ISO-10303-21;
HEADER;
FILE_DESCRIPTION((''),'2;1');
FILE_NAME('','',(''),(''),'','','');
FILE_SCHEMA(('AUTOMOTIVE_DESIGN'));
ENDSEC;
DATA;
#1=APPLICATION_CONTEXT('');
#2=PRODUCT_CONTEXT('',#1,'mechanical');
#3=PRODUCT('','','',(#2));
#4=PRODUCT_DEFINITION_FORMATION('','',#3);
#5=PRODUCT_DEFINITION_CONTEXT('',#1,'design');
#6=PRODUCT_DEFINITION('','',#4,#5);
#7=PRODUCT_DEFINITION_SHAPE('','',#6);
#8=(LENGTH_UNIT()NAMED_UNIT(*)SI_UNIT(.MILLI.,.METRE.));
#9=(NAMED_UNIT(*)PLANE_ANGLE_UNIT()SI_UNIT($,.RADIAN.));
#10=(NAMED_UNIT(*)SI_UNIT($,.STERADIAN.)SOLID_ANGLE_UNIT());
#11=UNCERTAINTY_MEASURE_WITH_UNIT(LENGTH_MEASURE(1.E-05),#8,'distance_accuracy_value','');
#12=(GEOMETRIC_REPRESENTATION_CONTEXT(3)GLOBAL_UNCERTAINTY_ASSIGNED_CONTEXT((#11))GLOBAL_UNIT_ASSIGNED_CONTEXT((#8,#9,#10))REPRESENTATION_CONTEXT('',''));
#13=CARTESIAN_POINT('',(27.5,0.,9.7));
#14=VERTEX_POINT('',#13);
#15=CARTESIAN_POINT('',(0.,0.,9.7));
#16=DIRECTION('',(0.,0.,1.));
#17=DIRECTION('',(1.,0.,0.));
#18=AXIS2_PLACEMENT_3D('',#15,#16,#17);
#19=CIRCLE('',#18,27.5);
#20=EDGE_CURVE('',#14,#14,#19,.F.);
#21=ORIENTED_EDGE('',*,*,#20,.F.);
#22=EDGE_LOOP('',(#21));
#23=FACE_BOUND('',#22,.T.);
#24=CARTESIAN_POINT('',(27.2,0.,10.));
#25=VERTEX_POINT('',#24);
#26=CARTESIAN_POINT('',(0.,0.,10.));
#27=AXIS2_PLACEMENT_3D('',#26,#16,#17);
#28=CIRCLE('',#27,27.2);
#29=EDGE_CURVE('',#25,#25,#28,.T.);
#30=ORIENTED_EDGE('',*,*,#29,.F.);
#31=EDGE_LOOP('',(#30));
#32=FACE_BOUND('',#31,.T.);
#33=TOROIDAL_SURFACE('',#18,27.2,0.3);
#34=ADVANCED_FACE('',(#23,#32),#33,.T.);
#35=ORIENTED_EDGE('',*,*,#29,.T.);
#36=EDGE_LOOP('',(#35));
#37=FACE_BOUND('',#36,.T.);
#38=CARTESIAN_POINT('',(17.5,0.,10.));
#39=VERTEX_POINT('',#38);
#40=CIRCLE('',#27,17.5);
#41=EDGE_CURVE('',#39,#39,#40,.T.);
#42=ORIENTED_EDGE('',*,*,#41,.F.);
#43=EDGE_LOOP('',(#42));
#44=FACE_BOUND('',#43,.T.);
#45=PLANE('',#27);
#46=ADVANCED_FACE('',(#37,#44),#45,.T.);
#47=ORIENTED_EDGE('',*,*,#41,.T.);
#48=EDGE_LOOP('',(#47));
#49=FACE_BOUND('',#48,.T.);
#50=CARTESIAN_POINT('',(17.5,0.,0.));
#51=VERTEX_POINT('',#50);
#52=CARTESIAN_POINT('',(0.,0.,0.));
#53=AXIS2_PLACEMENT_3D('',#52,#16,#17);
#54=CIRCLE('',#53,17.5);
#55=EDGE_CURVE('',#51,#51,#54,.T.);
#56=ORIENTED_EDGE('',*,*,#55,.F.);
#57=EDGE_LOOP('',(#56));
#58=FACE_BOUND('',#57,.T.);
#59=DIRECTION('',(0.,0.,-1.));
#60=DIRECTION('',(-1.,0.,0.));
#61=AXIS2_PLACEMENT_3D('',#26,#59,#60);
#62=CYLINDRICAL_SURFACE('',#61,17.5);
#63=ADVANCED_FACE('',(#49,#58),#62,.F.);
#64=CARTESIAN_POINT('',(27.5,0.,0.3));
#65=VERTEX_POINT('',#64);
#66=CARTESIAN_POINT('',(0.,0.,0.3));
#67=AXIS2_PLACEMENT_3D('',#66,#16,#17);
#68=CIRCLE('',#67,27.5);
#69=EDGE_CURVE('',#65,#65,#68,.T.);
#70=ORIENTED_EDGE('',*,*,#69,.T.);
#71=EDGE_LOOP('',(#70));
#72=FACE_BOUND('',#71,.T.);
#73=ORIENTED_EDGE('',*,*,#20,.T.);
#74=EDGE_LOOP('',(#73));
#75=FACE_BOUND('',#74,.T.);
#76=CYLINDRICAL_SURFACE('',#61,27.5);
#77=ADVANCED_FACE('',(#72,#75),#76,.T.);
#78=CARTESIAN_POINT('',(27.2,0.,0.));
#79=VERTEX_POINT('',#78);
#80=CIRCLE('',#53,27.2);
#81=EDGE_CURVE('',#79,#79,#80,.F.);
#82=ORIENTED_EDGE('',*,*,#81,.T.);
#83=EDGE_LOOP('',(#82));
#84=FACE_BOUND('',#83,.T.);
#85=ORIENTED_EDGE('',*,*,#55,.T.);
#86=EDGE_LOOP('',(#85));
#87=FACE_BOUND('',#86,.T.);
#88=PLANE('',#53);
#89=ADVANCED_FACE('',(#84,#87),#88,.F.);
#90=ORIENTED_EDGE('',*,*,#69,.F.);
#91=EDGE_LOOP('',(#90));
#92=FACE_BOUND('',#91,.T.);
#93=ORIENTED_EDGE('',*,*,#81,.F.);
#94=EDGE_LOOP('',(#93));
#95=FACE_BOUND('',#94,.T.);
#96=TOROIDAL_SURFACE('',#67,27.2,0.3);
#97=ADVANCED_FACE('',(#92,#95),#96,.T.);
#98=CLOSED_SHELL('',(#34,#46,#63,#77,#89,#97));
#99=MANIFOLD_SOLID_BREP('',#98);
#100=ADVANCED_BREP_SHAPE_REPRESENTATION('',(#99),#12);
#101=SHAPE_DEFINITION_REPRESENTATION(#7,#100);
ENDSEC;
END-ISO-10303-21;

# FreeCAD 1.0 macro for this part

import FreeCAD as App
import Part
import Sketcher
from FreeCAD import Vector


def edges_at(feature, points):
    """Names of the edges that pass closest to the given points."""
    edges = feature.Shape.Edges
    near = lambda p: min(range(len(edges)), key=lambda i: edges[i].distToShape(Part.Vertex(*p))[0])
    return sorted({f"Edge{near(p) + 1}" for p in points})

doc = App.newDocument("Part")
body = doc.addObject("PartDesign::Body", "Body")

# Sketch on XY plane
sketch1 = body.newObject("Sketcher::SketchObject", "Sketch")
sketch1.AttachmentSupport = (doc.getObject("XY_Plane"), [""])
sketch1.MapMode = "FlatFace"
sketch1.addGeometry([
    Part.Circle(Vector(0, 0, 0), Vector(0, 0, 1), 28),
    Part.Circle(Vector(0, 0, 0), Vector(0, 0, 1), 18),
], False)
sketch1.addConstraint([
    Sketcher.Constraint("Coincident", 0, 3, -1, 1),
    Sketcher.Constraint("Coincident", 1, 3, -1, 1),
    Sketcher.Constraint("Diameter", 0, 55.0),
    Sketcher.Constraint("Diameter", 1, 35.0),
])
pad1 = body.newObject("PartDesign::Pad", "Pad")
pad1.Profile = sketch1
pad1.Length = 10
doc.recompute()

fillet = body.newObject("PartDesign::Fillet", "Fillet")
fillet.Base = (pad1, edges_at(pad1, [(-27.5, 0, 0), (-27.5, 0, 10)]))
fillet.Radius = 0.3

doc.recompute()
